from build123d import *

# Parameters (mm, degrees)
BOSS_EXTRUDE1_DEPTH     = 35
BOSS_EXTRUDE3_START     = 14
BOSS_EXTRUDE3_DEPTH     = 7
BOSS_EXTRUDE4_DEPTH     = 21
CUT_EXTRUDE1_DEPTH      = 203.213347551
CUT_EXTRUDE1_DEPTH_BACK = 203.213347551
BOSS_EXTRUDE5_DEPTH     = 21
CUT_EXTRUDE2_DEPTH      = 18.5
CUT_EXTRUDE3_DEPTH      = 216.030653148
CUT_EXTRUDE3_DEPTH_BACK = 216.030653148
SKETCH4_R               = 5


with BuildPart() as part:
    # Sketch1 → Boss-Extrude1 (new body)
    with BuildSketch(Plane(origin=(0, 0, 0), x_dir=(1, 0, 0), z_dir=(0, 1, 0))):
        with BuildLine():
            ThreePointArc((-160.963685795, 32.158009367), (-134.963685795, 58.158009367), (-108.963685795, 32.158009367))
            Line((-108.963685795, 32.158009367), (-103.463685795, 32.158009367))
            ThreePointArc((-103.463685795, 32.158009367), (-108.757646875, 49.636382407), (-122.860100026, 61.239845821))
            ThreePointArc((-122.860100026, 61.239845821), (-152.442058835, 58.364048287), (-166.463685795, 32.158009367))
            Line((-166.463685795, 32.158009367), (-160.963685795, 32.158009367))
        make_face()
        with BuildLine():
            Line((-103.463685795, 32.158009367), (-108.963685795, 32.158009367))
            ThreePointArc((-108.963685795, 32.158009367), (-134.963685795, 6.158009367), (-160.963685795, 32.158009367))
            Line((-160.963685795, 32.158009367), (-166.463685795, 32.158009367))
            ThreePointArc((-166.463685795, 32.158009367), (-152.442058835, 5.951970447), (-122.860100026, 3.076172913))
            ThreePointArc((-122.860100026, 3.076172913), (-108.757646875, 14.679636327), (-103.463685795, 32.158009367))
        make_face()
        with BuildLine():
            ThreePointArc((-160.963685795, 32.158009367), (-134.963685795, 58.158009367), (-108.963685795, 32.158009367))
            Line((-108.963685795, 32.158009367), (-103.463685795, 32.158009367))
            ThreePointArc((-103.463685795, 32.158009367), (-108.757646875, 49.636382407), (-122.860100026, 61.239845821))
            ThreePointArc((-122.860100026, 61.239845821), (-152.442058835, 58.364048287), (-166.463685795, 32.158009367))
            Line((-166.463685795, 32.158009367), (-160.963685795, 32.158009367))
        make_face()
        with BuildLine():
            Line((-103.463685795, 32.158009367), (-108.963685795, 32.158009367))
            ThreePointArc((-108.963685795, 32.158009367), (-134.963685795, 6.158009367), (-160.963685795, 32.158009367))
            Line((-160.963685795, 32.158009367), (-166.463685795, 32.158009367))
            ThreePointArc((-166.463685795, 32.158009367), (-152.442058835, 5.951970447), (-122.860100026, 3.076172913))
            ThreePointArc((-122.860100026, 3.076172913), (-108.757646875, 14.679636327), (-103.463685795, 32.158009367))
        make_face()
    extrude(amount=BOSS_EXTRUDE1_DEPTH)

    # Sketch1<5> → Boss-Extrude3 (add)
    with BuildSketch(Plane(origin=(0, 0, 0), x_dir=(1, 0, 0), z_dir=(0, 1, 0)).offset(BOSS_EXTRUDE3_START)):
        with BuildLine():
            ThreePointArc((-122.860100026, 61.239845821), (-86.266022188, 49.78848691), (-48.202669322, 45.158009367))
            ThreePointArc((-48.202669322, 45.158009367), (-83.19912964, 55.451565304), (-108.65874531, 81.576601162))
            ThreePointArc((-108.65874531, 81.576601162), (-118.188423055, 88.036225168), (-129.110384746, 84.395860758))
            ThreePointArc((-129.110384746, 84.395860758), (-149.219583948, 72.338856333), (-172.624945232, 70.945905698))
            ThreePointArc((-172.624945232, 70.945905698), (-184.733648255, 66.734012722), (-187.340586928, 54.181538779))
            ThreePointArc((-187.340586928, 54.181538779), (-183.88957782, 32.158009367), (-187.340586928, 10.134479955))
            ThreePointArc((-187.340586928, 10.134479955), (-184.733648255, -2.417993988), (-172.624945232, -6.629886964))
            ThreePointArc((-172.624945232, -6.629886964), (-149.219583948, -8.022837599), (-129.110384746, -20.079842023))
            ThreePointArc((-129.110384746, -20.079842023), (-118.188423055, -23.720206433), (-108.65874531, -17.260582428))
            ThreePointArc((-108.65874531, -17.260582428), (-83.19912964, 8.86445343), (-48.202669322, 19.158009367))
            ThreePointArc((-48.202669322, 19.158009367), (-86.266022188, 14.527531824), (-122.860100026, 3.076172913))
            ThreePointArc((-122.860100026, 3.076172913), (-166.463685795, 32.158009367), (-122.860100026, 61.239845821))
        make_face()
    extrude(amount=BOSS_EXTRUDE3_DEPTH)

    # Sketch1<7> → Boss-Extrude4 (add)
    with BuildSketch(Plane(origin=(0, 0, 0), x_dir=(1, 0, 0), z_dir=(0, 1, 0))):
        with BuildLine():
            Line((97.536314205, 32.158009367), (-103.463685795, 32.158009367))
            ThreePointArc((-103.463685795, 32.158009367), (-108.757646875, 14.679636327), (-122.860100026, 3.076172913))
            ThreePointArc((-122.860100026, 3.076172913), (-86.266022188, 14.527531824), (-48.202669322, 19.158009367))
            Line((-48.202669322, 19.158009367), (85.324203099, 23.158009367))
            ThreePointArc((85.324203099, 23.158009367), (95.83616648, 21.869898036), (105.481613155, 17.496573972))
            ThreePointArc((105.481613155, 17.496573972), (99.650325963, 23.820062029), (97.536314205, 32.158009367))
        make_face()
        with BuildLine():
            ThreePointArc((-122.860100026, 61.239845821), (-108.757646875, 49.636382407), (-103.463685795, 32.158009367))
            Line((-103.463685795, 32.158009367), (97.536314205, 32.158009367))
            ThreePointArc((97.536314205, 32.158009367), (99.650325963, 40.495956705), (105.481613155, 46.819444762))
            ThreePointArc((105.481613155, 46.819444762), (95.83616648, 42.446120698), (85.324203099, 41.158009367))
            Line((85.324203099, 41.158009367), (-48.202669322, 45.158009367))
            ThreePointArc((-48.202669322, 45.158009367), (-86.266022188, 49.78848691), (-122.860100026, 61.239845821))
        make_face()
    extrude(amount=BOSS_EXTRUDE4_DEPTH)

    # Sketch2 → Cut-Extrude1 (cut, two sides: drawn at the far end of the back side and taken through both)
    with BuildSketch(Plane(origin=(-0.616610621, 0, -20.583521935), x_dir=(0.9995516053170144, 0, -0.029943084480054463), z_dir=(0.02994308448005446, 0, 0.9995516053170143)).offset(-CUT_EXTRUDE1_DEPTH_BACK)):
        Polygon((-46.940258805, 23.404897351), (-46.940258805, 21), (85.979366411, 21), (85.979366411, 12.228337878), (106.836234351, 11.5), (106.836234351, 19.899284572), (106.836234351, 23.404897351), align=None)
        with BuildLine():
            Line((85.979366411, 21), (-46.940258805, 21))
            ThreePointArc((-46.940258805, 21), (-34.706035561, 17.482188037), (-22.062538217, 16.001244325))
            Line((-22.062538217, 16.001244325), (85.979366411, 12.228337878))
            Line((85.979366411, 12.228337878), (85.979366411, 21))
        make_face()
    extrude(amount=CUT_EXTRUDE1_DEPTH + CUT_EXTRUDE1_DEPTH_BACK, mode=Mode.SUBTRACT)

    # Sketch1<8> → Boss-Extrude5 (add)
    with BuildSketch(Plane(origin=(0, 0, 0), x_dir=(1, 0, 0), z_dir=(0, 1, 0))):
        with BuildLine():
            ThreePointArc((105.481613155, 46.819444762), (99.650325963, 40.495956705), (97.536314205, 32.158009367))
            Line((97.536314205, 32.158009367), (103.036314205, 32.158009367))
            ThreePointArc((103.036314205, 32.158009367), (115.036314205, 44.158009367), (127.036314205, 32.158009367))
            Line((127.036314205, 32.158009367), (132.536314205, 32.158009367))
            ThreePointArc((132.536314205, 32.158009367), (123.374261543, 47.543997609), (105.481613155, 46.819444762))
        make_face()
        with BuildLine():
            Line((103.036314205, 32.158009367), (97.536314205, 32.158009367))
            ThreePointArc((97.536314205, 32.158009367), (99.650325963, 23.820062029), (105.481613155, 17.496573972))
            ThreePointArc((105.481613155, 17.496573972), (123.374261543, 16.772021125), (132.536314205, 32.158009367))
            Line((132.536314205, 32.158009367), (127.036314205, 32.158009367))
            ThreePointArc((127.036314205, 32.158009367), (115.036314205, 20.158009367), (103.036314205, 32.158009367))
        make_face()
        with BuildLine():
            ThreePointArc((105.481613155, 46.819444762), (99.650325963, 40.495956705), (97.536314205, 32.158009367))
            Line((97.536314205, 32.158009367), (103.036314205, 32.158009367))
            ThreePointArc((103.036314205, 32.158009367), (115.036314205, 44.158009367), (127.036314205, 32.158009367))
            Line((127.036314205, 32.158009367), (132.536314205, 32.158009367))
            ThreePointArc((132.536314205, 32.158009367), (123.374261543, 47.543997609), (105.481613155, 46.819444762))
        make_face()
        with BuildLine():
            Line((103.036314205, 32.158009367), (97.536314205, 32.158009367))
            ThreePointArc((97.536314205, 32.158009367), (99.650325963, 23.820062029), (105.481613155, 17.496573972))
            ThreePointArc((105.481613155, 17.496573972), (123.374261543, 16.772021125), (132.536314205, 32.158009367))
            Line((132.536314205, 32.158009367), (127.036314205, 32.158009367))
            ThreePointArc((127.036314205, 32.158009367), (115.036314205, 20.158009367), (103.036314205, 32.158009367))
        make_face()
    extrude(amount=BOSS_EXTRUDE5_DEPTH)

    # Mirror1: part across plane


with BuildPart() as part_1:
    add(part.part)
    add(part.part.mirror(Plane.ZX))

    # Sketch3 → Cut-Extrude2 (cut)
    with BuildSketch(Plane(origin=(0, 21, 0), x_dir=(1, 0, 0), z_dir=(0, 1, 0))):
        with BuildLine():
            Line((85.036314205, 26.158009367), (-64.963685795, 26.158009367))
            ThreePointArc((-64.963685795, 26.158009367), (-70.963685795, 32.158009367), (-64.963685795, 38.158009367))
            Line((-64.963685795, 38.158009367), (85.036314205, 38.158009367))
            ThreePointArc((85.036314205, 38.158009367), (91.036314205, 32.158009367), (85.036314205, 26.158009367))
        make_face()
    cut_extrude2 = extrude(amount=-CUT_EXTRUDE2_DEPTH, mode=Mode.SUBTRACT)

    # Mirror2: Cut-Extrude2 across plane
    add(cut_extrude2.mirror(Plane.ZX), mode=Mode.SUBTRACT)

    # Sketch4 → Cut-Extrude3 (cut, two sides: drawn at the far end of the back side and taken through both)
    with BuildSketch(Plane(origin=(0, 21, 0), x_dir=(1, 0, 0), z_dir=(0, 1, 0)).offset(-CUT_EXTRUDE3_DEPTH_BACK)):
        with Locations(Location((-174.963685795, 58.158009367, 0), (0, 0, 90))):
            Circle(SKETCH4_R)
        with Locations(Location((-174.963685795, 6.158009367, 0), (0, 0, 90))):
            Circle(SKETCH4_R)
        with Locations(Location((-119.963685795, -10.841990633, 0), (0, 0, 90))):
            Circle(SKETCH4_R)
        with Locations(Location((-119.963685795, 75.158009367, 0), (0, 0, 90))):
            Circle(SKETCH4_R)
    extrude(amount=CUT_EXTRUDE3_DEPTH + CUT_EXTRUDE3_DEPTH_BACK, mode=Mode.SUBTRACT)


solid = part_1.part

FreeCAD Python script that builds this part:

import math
import FreeCAD as App
import Part
import Sketcher
from FreeCAD import Vector
Q = App.Units.Quantity

doc = App.newDocument("Part")
body = doc.addObject("PartDesign::Body", "Body")

# Sketch on XZ plane
sketch1 = body.newObject("Sketcher::SketchObject", "Sketch")
sketch1.AttachmentSupport = (doc.getObject("XZ_Plane"), [""])
sketch1.MapMode = "FlatFace"
sketch1.addGeometry([
    Part.ArcOfCircle(Part.Circle(Vector(-135, -32, 0), Vector(0, 0, 1), 32), math.radians(0), math.radians(67)),
    Part.ArcOfCircle(Part.Circle(Vector(-135, -32, 0), Vector(0, 0, 1), 32), math.radians(-67), math.radians(0)),
    Part.ArcOfCircle(Part.Circle(Vector(-135, -32, 0), Vector(0, 0, 1), 32), math.radians(67), math.radians(293)),
    Part.Circle(Vector(-135, -32, 0), Vector(0, 0, 1), 26),
], False)
sketch1.addConstraint([
    Sketcher.Constraint("Tangent", 0, 1, 1, 2),
    Sketcher.Constraint("Tangent", 1, 1, 2, 2),
    Sketcher.Constraint("Tangent", 2, 1, 0, 2),
    Sketcher.Constraint("Coincident", 3, 3, 0, 3),
    Sketcher.Constraint("Horizontal", 3, 3, 0, 1),
    Sketcher.Constraint("Vertical", 1, 1, 2, 1),
    Sketcher.Constraint("Diameter", 3, Q("52 mm")),
    Sketcher.Constraint("Radius", 0, Q("31.5 mm")),
    Sketcher.Constraint("DistanceX", 1, 1, -1, 1, Q("122.8601 mm")),
    Sketcher.Constraint("DistanceY", 0, 3, -1, 1, Q("32.158009 mm")),
    Sketcher.Constraint("DistanceX", 0, 3, -1, 1, Q("134.963686 mm")),
])
pad1 = body.newObject("PartDesign::Pad", "Pad")
pad1.Profile = sketch1
pad1.Length = 35
pad1.Reversed = True

# Sketch on XZ plane
sketch2 = body.newObject("Sketcher::SketchObject", "Sketch001")
sketch2.AttachmentSupport = (doc.getObject("XZ_Plane"), [""])
sketch2.MapMode = "FlatFace"
sketch2.AttachmentOffset = App.Placement(Vector(0, 0, -14), App.Rotation())
sketch2.addGeometry([
    Part.ArcOfCircle(Part.Circle(Vector(-42, -256, 0), Vector(0, 0, 1), 211), math.radians(92), math.radians(113)),  # 0
    Part.ArcOfCircle(Part.Circle(Vector(-46, -117, 0), Vector(0, 0, 1), 72), math.radians(92), math.radians(150)),  # 1
    Part.ArcOfCircle(Part.Circle(Vector(-120, -75, 0), Vector(0, 0, 1), 13), math.radians(-135), math.radians(-30)),  # 2
    Part.ArcOfCircle(Part.Circle(Vector(-164, -119, 0), Vector(0, 0, 1), 49), math.radians(45), math.radians(100)),  # 3
    Part.ArcOfCircle(Part.Circle(Vector(-175, -58, 0), Vector(0, 0, 1), 13), math.radians(162), math.radians(280)),  # 4
    Part.ArcOfCircle(Part.Circle(Vector(-256, -32, 0), Vector(0, 0, 1), 72), math.radians(-18), math.radians(18)),  # 5
    Part.ArcOfCircle(Part.Circle(Vector(-175, -6, 0), Vector(0, 0, 1), 13), math.radians(80), math.radians(198)),  # 6
    Part.ArcOfCircle(Part.Circle(Vector(-164, 55, 0), Vector(0, 0, 1), 49), math.radians(-100), math.radians(-45)),  # 7
    Part.ArcOfCircle(Part.Circle(Vector(-120, 11, 0), Vector(0, 0, 1), 13), math.radians(30), math.radians(135)),  # 8
    Part.ArcOfCircle(Part.Circle(Vector(-46, 53, 0), Vector(0, 0, 1), 72), math.radians(-150), math.radians(-92)),  # 9
    Part.ArcOfCircle(Part.Circle(Vector(-42, 191, 0), Vector(0, 0, 1), 211), math.radians(-113), math.radians(-92)),  # 10
    Part.ArcOfCircle(Part.Circle(Vector(-135, -32, 0), Vector(0, 0, 1), 32), math.radians(67), math.radians(293)),  # 11
], False)
sketch2.addConstraint([
    Sketcher.Constraint("Tangent", 0, 1, 1, 1),
    Sketcher.Constraint("Tangent", 1, 2, 2, 2),
    Sketcher.Constraint("Tangent", 2, 1, 3, 1),
    Sketcher.Constraint("Tangent", 3, 2, 4, 2),
    Sketcher.Constraint("Tangent", 4, 1, 5, 1),
    Sketcher.Constraint("Tangent", 5, 2, 6, 2),
    Sketcher.Constraint("Tangent", 6, 1, 7, 1),
    Sketcher.Constraint("Tangent", 7, 2, 8, 2),
    Sketcher.Constraint("Tangent", 8, 1, 9, 1),
    Sketcher.Constraint("Tangent", 9, 2, 10, 2),
    Sketcher.Constraint("Tangent", 10, 1, 11, 1),
    Sketcher.Constraint("Tangent", 11, 2, 0, 2),
    Sketcher.Constraint("Equal", 2, 4),
    Sketcher.Constraint("Equal", 1, 5),
    Sketcher.Constraint("Equal", 4, 6),
    Sketcher.Constraint("Equal", 3, 7),
    Sketcher.Constraint("Equal", 6, 8),
    Sketcher.Constraint("Equal", 5, 9),
    Sketcher.Constraint("Equal", 0, 10),
    Sketcher.Constraint("Horizontal", 5, 3, 11, 3),
    Sketcher.Constraint("Vertical", 4, 3, 6, 3),
    Sketcher.Constraint("Vertical", 3, 3, 7, 3),
    Sketcher.Constraint("Vertical", 2, 3, 8, 3),
    Sketcher.Constraint("Vertical", 1, 3, 9, 3),
    Sketcher.Constraint("Radius", 1, Q("72 mm")),
    Sketcher.Constraint("Radius", 2, Q("13 mm")),
    Sketcher.Constraint("Radius", 11, Q("31.5 mm")),
    Sketcher.Constraint("DistanceX", 4, 3, 2, 3, Q("55 mm")),
    Sketcher.Constraint("DistanceY", 2, 3, 4, 3, Q("17 mm")),
    Sketcher.Constraint("DistanceY", 4, 3, 5, 3, Q("26 mm")),
    Sketcher.Constraint("DistanceX", 11, 3, 8, 3, Q("15 mm")),
    Sketcher.Constraint("DistanceY", 2, 3, 0, 1, Q("30 mm")),
    Sketcher.Constraint("Radius", 0, Q("210.71947 mm")),
    Sketcher.Constraint("Radius", 3, Q("49.252733 mm")),
    Sketcher.Constraint("DistanceY", 1, 2, -1, 1, Q("81.576601 mm")),
    Sketcher.Constraint("DistanceX", 11, 2, -1, 1, Q("122.8601 mm")),
])
pad2 = body.newObject("PartDesign::Pad", "Pad001")
pad2.Profile = sketch2
pad2.Length = 7
pad2.Reversed = True

# Sketch on XZ plane
sketch3 = body.newObject("Sketcher::SketchObject", "Sketch002")
sketch3.AttachmentSupport = (doc.getObject("XZ_Plane"), [""])
sketch3.MapMode = "FlatFace"
sketch3.addGeometry([
    Part.ArcOfCircle(Part.Circle(Vector(-135, -32, 0), Vector(0, 0, 1), 32), math.radians(0), math.radians(67)),  # 0
    Part.ArcOfCircle(Part.Circle(Vector(-42, 191, 0), Vector(0, 0, 1), 211), math.radians(-113), math.radians(-92)),  # 1
    Part.LineSegment(Vector(-48, -19, 0), Vector(85, -23, 0)),  # 2
    Part.ArcOfCircle(Part.Circle(Vector(86, 12, 0), Vector(0, 0, 1), 35), math.radians(-92), math.radians(-57)),  # 3
    Part.ArcOfCircle(Part.Circle(Vector(115, -32, 0), Vector(0, 0, 1), 18), math.radians(123), math.radians(180)),  # 4
    Part.ArcOfCircle(Part.Circle(Vector(115, -32, 0), Vector(0, 0, 1), 18), math.radians(-180), math.radians(-123)),  # 5
    Part.ArcOfCircle(Part.Circle(Vector(86, -76, 0), Vector(0, 0, 1), 35), math.radians(57), math.radians(92)),  # 6
    Part.LineSegment(Vector(85, -41, 0), Vector(-48, -45, 0)),  # 7
    Part.ArcOfCircle(Part.Circle(Vector(-42, -256, 0), Vector(0, 0, 1), 211), math.radians(92), math.radians(113)),  # 8
    Part.ArcOfCircle(Part.Circle(Vector(-135, -32, 0), Vector(0, 0, 1), 32), math.radians(-67), math.radians(0)),  # 9
], False)
sketch3.addConstraint([
    Sketcher.Constraint("Tangent", 0, 2, 1, 1),
    Sketcher.Constraint("Tangent", 1, 2, 2, 1),
    Sketcher.Constraint("Tangent", 2, 2, 3, 1),
    Sketcher.Constraint("Tangent", 3, 2, 4, 1),
    Sketcher.Constraint("Tangent", 4, 2, 5, 1),
    Sketcher.Constraint("Tangent", 5, 2, 6, 1),
    Sketcher.Constraint("Tangent", 6, 2, 7, 1),
    Sketcher.Constraint("Tangent", 7, 2, 8, 1),
    Sketcher.Constraint("Tangent", 8, 2, 9, 1),
    Sketcher.Constraint("Tangent", 9, 2, 0, 1),
    Sketcher.Constraint("Equal", 4, 5),
    Sketcher.Constraint("Equal", 3, 6),
    Sketcher.Constraint("Equal", 1, 8),
    Sketcher.Constraint("Equal", 0, 9),
    Sketcher.Constraint("Horizontal", 0, 3, 4, 3),
    Sketcher.Constraint("Horizontal", 9, 3, 4, 2),
    Sketcher.Constraint("Horizontal", 4, 2, 9, 2),
    Sketcher.Constraint("Vertical", 3, 3, 6, 3),
    Sketcher.Constraint("Vertical", 1, 3, 8, 3),
    Sketcher.Constraint("Radius", 3, Q("35 mm")),
    Sketcher.Constraint("Radius", 0, Q("31.5 mm")),
    Sketcher.Constraint("Radius", 4, Q("17.5 mm")),
    Sketcher.Constraint("DistanceX", 0, 3, 4, 3, Q("250 mm")),
    Sketcher.Constraint("DistanceY", 0, 3, 1, 2, Q("13 mm")),
    Sketcher.Constraint("DistanceY", 5, 3, 2, 2, Q("9 mm")),
    Sketcher.Constraint("Radius", 1, Q("210.71947 mm")),
    Sketcher.Constraint("DistanceX", 0, 2, -1, 1, Q("122.8601 mm")),
    Sketcher.Constraint("DistanceY", 0, 3, -1, 1, Q("32.158009 mm")),
])
pad3 = body.newObject("PartDesign::Pad", "Pad002")
pad3.Profile = sketch3
pad3.Length = 21
pad3.Reversed = True

# Sketch on an angled plane
sketch4 = body.newObject("Sketcher::SketchObject", "Sketch003")
sketch4.Placement = App.Placement(Vector(-0.616611, 0, -20.583522), App.Rotation(Vector(0.999551605, 0, -0.029943084), Vector(0, 0.999999999, 0), Vector(0.029943084, 0, 0.999551605), "ZXY"))
sketch4.addGeometry([
    Part.LineSegment(Vector(-46.9, 23.4, 0), Vector(-46.9, 21, 0)),  # 0
    Part.ArcOfCircle(Part.Circle(Vector(-19.3, 94, 0), Vector(0, 0, 1), 78), math.radians(-110.72), math.radians(-92)),  # 1
    Part.LineSegment(Vector(-22.1, 16, 0), Vector(86, 12.2, 0)),  # 2
    Part.LineSegment(Vector(86, 12.2, 0), Vector(106.8, 11.5, 0)),  # 3
    Part.LineSegment(Vector(106.8, 11.5, 0), Vector(106.8, 23.4, 0)),  # 4
    Part.LineSegment(Vector(106.8, 23.4, 0), Vector(-46.9, 23.4, 0)),  # 5
], False)
sketch4.addConstraint([
    Sketcher.Constraint("Coincident", 0, 2, 1, 1),
    Sketcher.Constraint("Tangent", 1, 2, 2, 1),
    Sketcher.Constraint("Coincident", 2, 2, 3, 1),
    Sketcher.Constraint("Coincident", 3, 2, 4, 1),
    Sketcher.Constraint("Coincident", 4, 2, 5, 1),
    Sketcher.Constraint("Coincident", 5, 2, 0, 1),
    Sketcher.Constraint("Vertical", 0),
    Sketcher.Constraint("Vertical", 4),
    Sketcher.Constraint("Horizontal", 5),
    Sketcher.Constraint("Parallel", 2, 3),
    Sketcher.Constraint("Radius", 1, Q("78 mm")),
    Sketcher.Constraint("Angle", 2, Q("-2 deg")),
    Sketcher.Constraint("DistanceY", -1, 1, 0, 2, Q("21 mm")),
    Sketcher.Constraint("DistanceY", -1, 1, 3, 2, Q("11.5 mm")),
    Sketcher.Constraint("Distance", 2, Q("108.107761 mm")),
    Sketcher.Constraint("Distance", 3, Q("20.869581 mm")),
    Sketcher.Constraint("DistanceY", 0, 2, 0, 1, Q("2.404897 mm")),
    Sketcher.Constraint("DistanceX", 0, 2, -1, 1, Q("46.940259 mm")),
])
pocket1 = body.newObject("PartDesign::Pocket", "Pocket")
pocket1.Profile = sketch4
pocket1.Type = "ThroughAll"
pocket1.Midplane = True

# Sketch on XZ plane
sketch5 = body.newObject("Sketcher::SketchObject", "Sketch004")
sketch5.AttachmentSupport = (doc.getObject("XZ_Plane"), [""])
sketch5.MapMode = "FlatFace"
sketch5.addGeometry([
    Part.ArcOfCircle(Part.Circle(Vector(115, -32, 0), Vector(0, 0, 1), 18), math.radians(-180), math.radians(-123)),  # 0
    Part.ArcOfCircle(Part.Circle(Vector(115, -32, 0), Vector(0, 0, 1), 18), math.radians(123), math.radians(180)),  # 1
    Part.ArcOfCircle(Part.Circle(Vector(115, -32, 0), Vector(0, 0, 1), 18), math.radians(0), math.radians(123)),  # 2
    Part.ArcOfCircle(Part.Circle(Vector(115, -32, 0), Vector(0, 0, 1), 18), math.radians(-123), math.radians(0)),  # 3
    Part.Circle(Vector(115, -32, 0), Vector(0, 0, 1), 12),  # 4
], False)
sketch5.addConstraint([
    Sketcher.Constraint("Tangent", 0, 1, 1, 2),
    Sketcher.Constraint("Tangent", 1, 1, 2, 2),
    Sketcher.Constraint("Tangent", 2, 1, 3, 2),
    Sketcher.Constraint("Tangent", 3, 1, 0, 2),
    Sketcher.Constraint("Coincident", 4, 3, 0, 3),
    Sketcher.Constraint("Equal", 0, 1),
    Sketcher.Constraint("Horizontal", 4, 3, 0, 1),
    Sketcher.Constraint("Horizontal", 0, 1, 2, 1),
    Sketcher.Constraint("Vertical", 1, 1, 3, 1),
    Sketcher.Constraint("Diameter", 4, Q("24 mm")),
    Sketcher.Constraint("Radius", 0, Q("17.5 mm")),
    Sketcher.Constraint("DistanceX", 0, 1, 1, 1, Q("7.945299 mm")),
    Sketcher.Constraint("DistanceY", 0, 3, -1, 1, Q("32.158009 mm")),
    Sketcher.Constraint("DistanceX", -1, 1, 0, 3, Q("115.036314 mm")),
])
pad4 = body.newObject("PartDesign::Pad", "Pad003")
pad4.Profile = sketch5
pad4.Length = 21
pad4.Reversed = True
body2 = doc.addObject("PartDesign::Body", "Body001")
doc.recompute()

body2.BaseFeature = body
doc.recompute()

mirroring = doc.addObject("Part::Mirroring", "Mirroring")
mirroring.Source = body
mirroring.Base = Vector(0, 0, 0)
mirroring.Normal = Vector(0, 1, 0)
body3 = doc.addObject("PartDesign::Body", "Body002")
body3.BaseFeature = mirroring
boolean = body2.newObject("PartDesign::Boolean", "Boolean")
boolean.Type = "Fuse"
boolean.addObjects([body3])
doc.recompute()

# Sketch on XZ plane
sketch6 = body2.newObject("Sketcher::SketchObject", "Sketch005")
sketch6.AttachmentSupport = (doc.getObject("XZ_Plane001"), [""])
sketch6.MapMode = "FlatFace"
sketch6.AttachmentOffset = App.Placement(Vector(0, 0, -21), App.Rotation())
sketch6.addGeometry([
    Part.LineSegment(Vector(-65, -26, 0), Vector(85, -26, 0)),
    Part.ArcOfCircle(Part.Circle(Vector(85, -32, 0), Vector(0, 0, 1), 6), math.radians(-90), math.radians(90)),
    Part.LineSegment(Vector(85, -38, 0), Vector(-65, -38, 0)),
    Part.ArcOfCircle(Part.Circle(Vector(-65, -32, 0), Vector(0, 0, 1), 6), math.radians(90), math.radians(270)),
], False)
sketch6.addConstraint([
    Sketcher.Constraint("Tangent", 0, 2, 1, 2),
    Sketcher.Constraint("Tangent", 1, 1, 2, 1),
    Sketcher.Constraint("Tangent", 2, 2, 3, 2),
    Sketcher.Constraint("Tangent", 3, 1, 0, 1),
    Sketcher.Constraint("Horizontal", 0),
    Sketcher.Constraint("Horizontal", 2),
    Sketcher.Constraint("Radius", 1, Q("6 mm")),
    Sketcher.Constraint("DistanceX", 0, 1, 0, 2, Q("150 mm")),
    Sketcher.Constraint("DistanceY", 1, 3, -1, 1, Q("32.158009 mm")),
    Sketcher.Constraint("DistanceX", -1, 1, 1, 3, Q("85.036314 mm")),
])
pocket2 = body2.newObject("PartDesign::Pocket", "Pocket001")
pocket2.Profile = sketch6
pocket2.Length = 18.5
pocket2.Reversed = True
doc.recompute()

mirrored = body2.newObject("PartDesign::Mirrored", "Mirrored")
mirrored.Originals = [pocket2]
mirrored.MirrorPlane = (doc.getObject("XZ_Plane001"), [""])
body2.Tip = mirrored

# Sketch on XZ plane
sketch7 = body2.newObject("Sketcher::SketchObject", "Sketch006")
sketch7.AttachmentSupport = (doc.getObject("XZ_Plane001"), [""])
sketch7.MapMode = "FlatFace"
sketch7.AttachmentOffset = App.Placement(Vector(0, 0, -21), App.Rotation())
sketch7.addGeometry([
    Part.Circle(Vector(-175, -58, 0), Vector(0, 0, 1), 5),
    Part.Circle(Vector(-175, -6, 0), Vector(0, 0, 1), 5),
    Part.Circle(Vector(-120, 11, 0), Vector(0, 0, 1), 5),
    Part.Circle(Vector(-120, -75, 0), Vector(0, 0, 1), 5),
], False)
sketch7.addConstraint([
    Sketcher.Constraint("Equal", 0, 1),
    Sketcher.Constraint("Equal", 1, 2),
    Sketcher.Constraint("Equal", 2, 3),
    Sketcher.Constraint("Vertical", 0, 3, 1, 3),
    Sketcher.Constraint("Vertical", 2, 3, 3, 3),
    Sketcher.Constraint("Diameter", 0, Q("10 mm")),
    Sketcher.Constraint("DistanceY", 0, 3, 1, 3, Q("52 mm")),
    Sketcher.Constraint("DistanceX", 1, 3, 2, 3, Q("55 mm")),
    Sketcher.Constraint("DistanceY", 1, 3, 2, 3, Q("17 mm")),
    Sketcher.Constraint("DistanceY", 3, 3, 0, 3, Q("17 mm")),
    Sketcher.Constraint("DistanceY", 0, 3, -1, 1, Q("58.158009 mm")),
    Sketcher.Constraint("DistanceX", 0, 3, -1, 1, Q("174.963686 mm")),
])
pocket3 = body2.newObject("PartDesign::Pocket", "Pocket002")
pocket3.Profile = sketch7
pocket3.Type = "ThroughAll"
pocket3.Midplane = True
mirroring.Visibility = False

doc.recompute()
